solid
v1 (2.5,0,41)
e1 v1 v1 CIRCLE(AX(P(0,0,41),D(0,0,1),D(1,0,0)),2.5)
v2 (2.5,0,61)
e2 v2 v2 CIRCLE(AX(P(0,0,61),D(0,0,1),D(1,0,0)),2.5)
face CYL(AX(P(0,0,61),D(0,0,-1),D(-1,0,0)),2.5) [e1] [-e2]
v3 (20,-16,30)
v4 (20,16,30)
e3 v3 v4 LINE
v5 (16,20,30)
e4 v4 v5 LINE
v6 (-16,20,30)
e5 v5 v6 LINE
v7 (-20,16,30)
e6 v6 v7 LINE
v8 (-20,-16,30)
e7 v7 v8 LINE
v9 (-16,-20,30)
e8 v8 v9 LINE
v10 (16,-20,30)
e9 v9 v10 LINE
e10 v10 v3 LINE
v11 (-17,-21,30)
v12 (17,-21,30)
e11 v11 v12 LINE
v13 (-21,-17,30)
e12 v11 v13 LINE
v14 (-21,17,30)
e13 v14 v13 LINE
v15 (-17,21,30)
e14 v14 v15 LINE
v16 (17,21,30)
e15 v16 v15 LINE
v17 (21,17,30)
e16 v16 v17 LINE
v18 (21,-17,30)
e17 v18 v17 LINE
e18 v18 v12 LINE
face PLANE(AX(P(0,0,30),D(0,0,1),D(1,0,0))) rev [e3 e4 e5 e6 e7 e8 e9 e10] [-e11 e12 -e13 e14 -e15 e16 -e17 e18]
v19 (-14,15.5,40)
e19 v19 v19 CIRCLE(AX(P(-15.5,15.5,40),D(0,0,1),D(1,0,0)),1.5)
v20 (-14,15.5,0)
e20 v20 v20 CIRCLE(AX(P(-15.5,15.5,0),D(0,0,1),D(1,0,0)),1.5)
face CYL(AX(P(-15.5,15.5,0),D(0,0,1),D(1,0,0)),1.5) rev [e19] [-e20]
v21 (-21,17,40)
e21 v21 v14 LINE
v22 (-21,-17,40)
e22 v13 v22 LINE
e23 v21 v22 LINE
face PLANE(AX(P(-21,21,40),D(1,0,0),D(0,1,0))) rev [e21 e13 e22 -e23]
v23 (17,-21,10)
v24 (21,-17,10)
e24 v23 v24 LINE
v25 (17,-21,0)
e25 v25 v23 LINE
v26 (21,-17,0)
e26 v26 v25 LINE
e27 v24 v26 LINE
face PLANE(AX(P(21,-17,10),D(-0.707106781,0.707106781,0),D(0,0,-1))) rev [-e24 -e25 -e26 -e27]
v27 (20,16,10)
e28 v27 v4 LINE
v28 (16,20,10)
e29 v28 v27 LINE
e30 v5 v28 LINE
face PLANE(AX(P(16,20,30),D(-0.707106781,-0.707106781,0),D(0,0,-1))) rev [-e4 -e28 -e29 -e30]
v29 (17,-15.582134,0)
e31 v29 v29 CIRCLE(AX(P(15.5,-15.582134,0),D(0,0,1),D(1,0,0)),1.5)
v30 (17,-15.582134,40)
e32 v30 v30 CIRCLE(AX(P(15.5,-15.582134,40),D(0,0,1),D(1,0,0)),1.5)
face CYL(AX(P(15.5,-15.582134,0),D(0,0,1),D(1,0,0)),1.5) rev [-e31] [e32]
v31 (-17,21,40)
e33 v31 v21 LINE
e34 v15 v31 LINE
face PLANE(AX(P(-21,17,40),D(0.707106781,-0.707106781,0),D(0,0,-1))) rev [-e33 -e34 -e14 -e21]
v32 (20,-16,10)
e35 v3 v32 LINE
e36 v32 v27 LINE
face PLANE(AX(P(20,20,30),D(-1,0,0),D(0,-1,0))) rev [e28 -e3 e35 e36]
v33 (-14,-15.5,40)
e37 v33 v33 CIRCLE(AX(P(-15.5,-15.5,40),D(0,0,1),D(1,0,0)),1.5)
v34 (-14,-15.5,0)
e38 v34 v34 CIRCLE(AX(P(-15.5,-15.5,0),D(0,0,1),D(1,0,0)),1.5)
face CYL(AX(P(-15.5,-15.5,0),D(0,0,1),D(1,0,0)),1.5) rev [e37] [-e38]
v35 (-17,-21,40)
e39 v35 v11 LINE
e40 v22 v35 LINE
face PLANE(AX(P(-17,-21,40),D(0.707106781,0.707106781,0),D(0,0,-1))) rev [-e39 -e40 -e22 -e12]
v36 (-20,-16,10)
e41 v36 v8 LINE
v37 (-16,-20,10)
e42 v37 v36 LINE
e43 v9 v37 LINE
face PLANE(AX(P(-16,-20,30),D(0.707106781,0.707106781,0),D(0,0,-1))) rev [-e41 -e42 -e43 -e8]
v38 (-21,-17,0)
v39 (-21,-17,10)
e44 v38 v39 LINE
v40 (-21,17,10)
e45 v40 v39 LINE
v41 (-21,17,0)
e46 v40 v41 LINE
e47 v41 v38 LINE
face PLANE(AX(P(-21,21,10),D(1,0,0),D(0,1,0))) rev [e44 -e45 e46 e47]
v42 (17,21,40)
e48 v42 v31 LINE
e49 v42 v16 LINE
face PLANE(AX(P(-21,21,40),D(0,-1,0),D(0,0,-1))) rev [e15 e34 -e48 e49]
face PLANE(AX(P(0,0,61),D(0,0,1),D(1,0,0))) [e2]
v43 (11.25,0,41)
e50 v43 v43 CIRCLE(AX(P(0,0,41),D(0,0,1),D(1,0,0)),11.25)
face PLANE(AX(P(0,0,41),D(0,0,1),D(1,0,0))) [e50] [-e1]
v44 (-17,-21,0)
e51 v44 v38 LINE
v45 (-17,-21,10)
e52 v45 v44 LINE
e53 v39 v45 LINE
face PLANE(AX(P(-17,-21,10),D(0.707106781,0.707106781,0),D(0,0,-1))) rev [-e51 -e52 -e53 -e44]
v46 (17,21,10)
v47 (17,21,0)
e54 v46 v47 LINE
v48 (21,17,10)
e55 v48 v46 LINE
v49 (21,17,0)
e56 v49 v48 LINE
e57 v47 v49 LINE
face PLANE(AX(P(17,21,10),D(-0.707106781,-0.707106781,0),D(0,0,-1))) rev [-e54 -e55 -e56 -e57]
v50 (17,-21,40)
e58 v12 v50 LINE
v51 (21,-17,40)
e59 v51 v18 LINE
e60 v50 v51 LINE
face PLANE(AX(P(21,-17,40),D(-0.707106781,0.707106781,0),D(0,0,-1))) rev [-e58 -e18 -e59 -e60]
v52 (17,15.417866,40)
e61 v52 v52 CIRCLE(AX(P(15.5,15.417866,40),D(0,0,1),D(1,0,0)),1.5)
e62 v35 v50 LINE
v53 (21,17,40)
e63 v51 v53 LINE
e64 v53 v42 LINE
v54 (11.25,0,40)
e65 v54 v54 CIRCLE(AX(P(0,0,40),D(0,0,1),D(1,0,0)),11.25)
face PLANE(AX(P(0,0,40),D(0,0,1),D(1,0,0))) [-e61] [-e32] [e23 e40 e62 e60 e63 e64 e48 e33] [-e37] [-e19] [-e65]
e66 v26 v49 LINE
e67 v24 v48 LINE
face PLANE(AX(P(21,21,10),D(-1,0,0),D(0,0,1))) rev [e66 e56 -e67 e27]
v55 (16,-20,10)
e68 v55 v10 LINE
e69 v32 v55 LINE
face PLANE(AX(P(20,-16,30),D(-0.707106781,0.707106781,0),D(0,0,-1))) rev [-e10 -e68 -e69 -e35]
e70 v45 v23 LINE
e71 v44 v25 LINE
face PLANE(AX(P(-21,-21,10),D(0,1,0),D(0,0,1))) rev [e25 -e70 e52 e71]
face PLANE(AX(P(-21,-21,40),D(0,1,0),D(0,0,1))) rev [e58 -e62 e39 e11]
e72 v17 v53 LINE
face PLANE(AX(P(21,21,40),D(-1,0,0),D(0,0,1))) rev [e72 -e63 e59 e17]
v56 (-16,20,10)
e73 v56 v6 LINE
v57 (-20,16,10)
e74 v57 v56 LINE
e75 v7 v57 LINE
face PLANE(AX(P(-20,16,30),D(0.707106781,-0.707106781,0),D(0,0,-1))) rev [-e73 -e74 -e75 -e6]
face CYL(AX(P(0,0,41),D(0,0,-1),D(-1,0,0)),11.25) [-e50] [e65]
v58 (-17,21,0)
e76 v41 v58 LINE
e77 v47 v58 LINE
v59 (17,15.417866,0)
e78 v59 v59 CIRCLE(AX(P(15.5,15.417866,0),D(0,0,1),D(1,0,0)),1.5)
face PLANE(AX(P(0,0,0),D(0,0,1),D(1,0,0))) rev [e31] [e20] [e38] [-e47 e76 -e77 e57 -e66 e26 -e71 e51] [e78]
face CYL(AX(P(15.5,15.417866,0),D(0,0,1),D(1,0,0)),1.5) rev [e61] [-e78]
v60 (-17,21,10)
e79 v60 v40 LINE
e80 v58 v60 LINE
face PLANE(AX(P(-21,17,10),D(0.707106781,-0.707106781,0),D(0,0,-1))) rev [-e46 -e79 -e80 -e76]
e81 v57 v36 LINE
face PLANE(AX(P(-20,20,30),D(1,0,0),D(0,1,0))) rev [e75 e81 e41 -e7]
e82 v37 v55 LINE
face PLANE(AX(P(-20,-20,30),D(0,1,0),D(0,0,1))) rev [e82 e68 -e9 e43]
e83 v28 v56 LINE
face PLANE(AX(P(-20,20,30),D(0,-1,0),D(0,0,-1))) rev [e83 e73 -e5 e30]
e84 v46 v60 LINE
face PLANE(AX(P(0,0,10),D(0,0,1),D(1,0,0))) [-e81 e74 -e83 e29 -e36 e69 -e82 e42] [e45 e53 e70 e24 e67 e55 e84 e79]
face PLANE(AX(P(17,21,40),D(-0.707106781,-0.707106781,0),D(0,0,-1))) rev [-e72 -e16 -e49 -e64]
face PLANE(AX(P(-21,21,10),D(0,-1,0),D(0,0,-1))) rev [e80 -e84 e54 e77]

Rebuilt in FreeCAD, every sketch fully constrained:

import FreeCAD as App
import Part
import Sketcher
Q = App.Units.Quantity


def edges_at(feature, points):
    """Names of the edges that pass closest to the given points."""
    edges = feature.Shape.Edges
    near = lambda p: min(range(len(edges)), key=lambda i: edges[i].distToShape(Part.Vertex(*p))[0])
    return sorted({f"Edge{near(p) + 1}" for p in points})


def add_polygon(sketch, points):
    """Adds a closed chain of lines whose ends are joined by coincident constraints."""
    first, n = sketch.GeometryCount, len(points)
    for a, b in zip(points, points[1:] + points[:1]):
        sketch.addGeometry(Part.LineSegment(App.Vector(*a, 0), App.Vector(*b, 0)), False)
    for i in range(n):
        sketch.addConstraint(Sketcher.Constraint("Coincident", first + i, 2, first + (i + 1) % n, 1))

doc = App.newDocument("Part")
body = doc.addObject("PartDesign::Body", "Body")

sketch1 = body.newObject("Sketcher::SketchObject", "Sketch")
sketch1.AttachmentSupport = (doc.getObject("XY_Plane"), [""])
sketch1.MapMode = "FlatFace"
add_polygon(sketch1, [(-21, 21), (-21, -21), (21, -21), (21, 21)])
sketch1.addConstraint(Sketcher.Constraint("Vertical", 0))
sketch1.addConstraint(Sketcher.Constraint("Horizontal", 1))
sketch1.addConstraint(Sketcher.Constraint("Vertical", 2))
sketch1.addConstraint(Sketcher.Constraint("Horizontal", 3))
sketch1.addConstraint(Sketcher.Constraint("Symmetric", 0, 2, 2, 2, -1, 1))
sketch1.addConstraint(Sketcher.Constraint("Equal", 3, 0))
sketch1.addConstraint(Sketcher.Constraint("DistanceX", 1, 1, 1, 2, Q("42 mm")))
pad1 = body.newObject("PartDesign::Pad", "Pad")
pad1.Profile = sketch1
pad1.Length = 10

sketch2 = body.newObject("Sketcher::SketchObject", "Sketch001")
sketch2.AttachmentSupport = (doc.getObject("XY_Plane"), [""])
sketch2.MapMode = "FlatFace"
sketch2.AttachmentOffset = App.Placement(App.Vector(0, 0, 10), App.Rotation())
add_polygon(sketch2, [(-20, 20), (-20, -20), (20, -20), (20, 20)])
sketch2.addConstraint(Sketcher.Constraint("Vertical", 0))
sketch2.addConstraint(Sketcher.Constraint("Horizontal", 1))
sketch2.addConstraint(Sketcher.Constraint("Vertical", 2))
sketch2.addConstraint(Sketcher.Constraint("Horizontal", 3))
sketch2.addConstraint(Sketcher.Constraint("Symmetric", 0, 2, 2, 2, -1, 1))
sketch2.addConstraint(Sketcher.Constraint("Equal", 3, 0))
sketch2.addConstraint(Sketcher.Constraint("DistanceX", 1, 1, 1, 2, Q("40 mm")))
pad2 = body.newObject("PartDesign::Pad", "Pad001")
pad2.Profile = sketch2
pad2.Length = 20

sketch3 = body.newObject("Sketcher::SketchObject", "Sketch002")
sketch3.AttachmentSupport = (doc.getObject("XY_Plane"), [""])
sketch3.MapMode = "FlatFace"
sketch3.AttachmentOffset = App.Placement(App.Vector(0, 0, 30), App.Rotation())
add_polygon(sketch3, [(-21, 21), (-21, -21), (21, -21), (21, 21)])
sketch3.addConstraint(Sketcher.Constraint("Vertical", 0))
sketch3.addConstraint(Sketcher.Constraint("Horizontal", 1))
sketch3.addConstraint(Sketcher.Constraint("Vertical", 2))
sketch3.addConstraint(Sketcher.Constraint("Horizontal", 3))
sketch3.addConstraint(Sketcher.Constraint("Symmetric", 0, 2, 2, 2, -1, 1))
sketch3.addConstraint(Sketcher.Constraint("Equal", 3, 0))
sketch3.addConstraint(Sketcher.Constraint("DistanceX", 1, 1, 1, 2, Q("42 mm")))
pad3 = body.newObject("PartDesign::Pad", "Pad002")
pad3.Profile = sketch3
pad3.Length = 10

sketch4 = body.newObject("Sketcher::SketchObject", "Sketch003")
sketch4.AttachmentSupport = (doc.getObject("XY_Plane"), [""])
sketch4.MapMode = "FlatFace"
sketch4.AttachmentOffset = App.Placement(App.Vector(0, 0, 40), App.Rotation())
sketch4.addGeometry(Part.Circle(App.Vector(0, 0, 0), App.Vector(0, 0, 1), 11), False)
sketch4.addConstraint(Sketcher.Constraint("Coincident", 0, 3, -1, 1))
sketch4.addConstraint(Sketcher.Constraint("Diameter", 0, Q("22.5 mm")))
pad4 = body.newObject("PartDesign::Pad", "Pad003")
pad4.Profile = sketch4
pad4.Length = 1
doc.recompute()

chamfer = body.newObject("PartDesign::Chamfer", "Chamfer")
chamfer.Base = (pad4, edges_at(pad4, [
    (20, -20, 20),
    (20, 20, 20),
    (-20, 20, 20),
    (-20, -20, 20),
    (21, -21, 35),
    (21, 21, 35),
    (-21, 21, 35),
    (-21, -21, 35),
    (21, -21, 5),
    (-21, -21, 5),
    (-21, 21, 5),
    (21, 21, 5),
]))
chamfer.Size = 4

sketch5 = body.newObject("Sketcher::SketchObject", "Sketch004")
sketch5.AttachmentSupport = (doc.getObject("XY_Plane"), [""])
sketch5.MapMode = "FlatFace"
sketch5.AttachmentOffset = App.Placement(App.Vector(0, 0, 41), App.Rotation())
sketch5.addGeometry(Part.Circle(App.Vector(0, 0, 0), App.Vector(0, 0, 1), 2.5), False)
sketch5.addConstraint(Sketcher.Constraint("Coincident", 0, 3, -1, 1))
sketch5.addConstraint(Sketcher.Constraint("Diameter", 0, Q("5 mm")))
pad5 = body.newObject("PartDesign::Pad", "Pad004")
pad5.Profile = sketch5
pad5.Length = 20

sketch6 = body.newObject("Sketcher::SketchObject", "Sketch005")
sketch6.AttachmentSupport = (doc.getObject("XY_Plane"), [""])
sketch6.MapMode = "FlatFace"
sketch6.AttachmentOffset = App.Placement(App.Vector(0, 0, 40), App.Rotation())
sketch6.addGeometry(Part.Circle(App.Vector(-15.5, -15.5, 0), App.Vector(0, 0, 1), 1.5), False)
sketch6.addGeometry(Part.Circle(App.Vector(-15.5, 15.5, 0), App.Vector(0, 0, 1), 1.5), False)
sketch6.addGeometry(Part.Circle(App.Vector(15.5, 15.4, 0), App.Vector(0, 0, 1), 1.5), False)
sketch6.addGeometry(Part.Circle(App.Vector(15.5, -15.6, 0), App.Vector(0, 0, 1), 1.5), False)
sketch6.addConstraint(Sketcher.Constraint("Equal", 0, 1))
sketch6.addConstraint(Sketcher.Constraint("Equal", 1, 2))
sketch6.addConstraint(Sketcher.Constraint("Equal", 2, 3))
sketch6.addConstraint(Sketcher.Constraint("Symmetric", 0, 3, 1, 3, -1))
sketch6.addConstraint(Sketcher.Constraint("Vertical", 2, 3, 3, 3))
sketch6.addConstraint(Sketcher.Constraint("Diameter", 0, Q("3 mm")))
sketch6.addConstraint(Sketcher.Constraint("DistanceY", 0, 3, 1, 3, Q("31 mm")))
sketch6.addConstraint(Sketcher.Constraint("DistanceX", 1, 3, 2, 3, Q("31 mm")))
sketch6.addConstraint(Sketcher.Constraint("DistanceY", 3, 3, 2, 3, Q("31 mm")))
sketch6.addConstraint(Sketcher.Constraint("DistanceX", 0, 3, -1, 1, Q("15.5 mm")))
sketch6.addConstraint(Sketcher.Constraint("DistanceY", -1, 1, 2, 3, Q("15.417866 mm")))
pocket1 = body.newObject("PartDesign::Pocket", "Pocket")
pocket1.Profile = sketch6
pocket1.Length = 40

doc.recompute()
